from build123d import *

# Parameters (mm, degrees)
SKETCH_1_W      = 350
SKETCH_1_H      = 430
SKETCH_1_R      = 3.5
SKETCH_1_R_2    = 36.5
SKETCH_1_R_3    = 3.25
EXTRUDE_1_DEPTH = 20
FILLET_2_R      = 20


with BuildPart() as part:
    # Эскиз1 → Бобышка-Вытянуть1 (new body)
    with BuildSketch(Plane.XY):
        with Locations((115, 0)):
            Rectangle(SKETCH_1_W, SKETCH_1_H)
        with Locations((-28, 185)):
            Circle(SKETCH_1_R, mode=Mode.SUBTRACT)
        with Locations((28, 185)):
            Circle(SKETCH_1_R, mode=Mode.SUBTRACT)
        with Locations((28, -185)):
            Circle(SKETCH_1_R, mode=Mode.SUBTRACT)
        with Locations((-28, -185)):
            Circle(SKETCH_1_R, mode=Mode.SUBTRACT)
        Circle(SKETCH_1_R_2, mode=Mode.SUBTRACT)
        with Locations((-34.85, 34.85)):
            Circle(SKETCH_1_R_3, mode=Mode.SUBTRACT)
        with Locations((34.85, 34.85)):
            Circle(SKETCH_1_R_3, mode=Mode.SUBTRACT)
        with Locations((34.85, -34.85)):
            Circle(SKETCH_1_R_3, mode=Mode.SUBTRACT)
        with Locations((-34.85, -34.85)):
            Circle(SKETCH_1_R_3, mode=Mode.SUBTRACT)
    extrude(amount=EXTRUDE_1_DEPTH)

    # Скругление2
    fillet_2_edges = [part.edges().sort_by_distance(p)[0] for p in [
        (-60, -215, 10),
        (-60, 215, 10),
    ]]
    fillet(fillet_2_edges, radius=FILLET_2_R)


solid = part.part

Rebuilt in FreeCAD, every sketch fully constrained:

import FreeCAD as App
import Part
import Sketcher
from FreeCAD import Vector


def edges_at(feature, points):
    """Names of the edges that pass closest to the given points."""
    edges = feature.Shape.Edges
    near = lambda p: min(range(len(edges)), key=lambda i: edges[i].distToShape(Part.Vertex(*p))[0])
    return sorted({f"Edge{near(p) + 1}" for p in points})


def add_polygon(sketch, points):
    """Adds a closed chain of lines whose ends are joined by coincident constraints."""
    first, n = sketch.GeometryCount, len(points)
    for a, b in zip(points, points[1:] + points[:1]):
        sketch.addGeometry(Part.LineSegment(App.Vector(*a, 0), App.Vector(*b, 0)), False)
    for i in range(n):
        sketch.addConstraint(Sketcher.Constraint("Coincident", first + i, 2, first + (i + 1) % n, 1))

doc = App.newDocument("Part")
body = doc.addObject("PartDesign::Body", "Body")

# Sketch on XY plane
sketch1 = body.newObject("Sketcher::SketchObject", "Sketch")
sketch1.AttachmentSupport = (doc.getObject("XY_Plane"), [""])
sketch1.MapMode = "FlatFace"
add_polygon(sketch1, [(-60, 215), (-60, -215), (290, -215), (290, 215)])  # lines 0-3
sketch1.addGeometry(Part.Circle(Vector(-28, -185, 0), Vector(0, 0, 1), 3.5), False)  # 4
sketch1.addGeometry(Part.Circle(Vector(-34.9, -34.9, 0), Vector(0, 0, 1), 3.2), False)  # 5
sketch1.addGeometry(Part.Circle(Vector(28, -185, 0), Vector(0, 0, 1), 3.5), False)  # 6
sketch1.addGeometry(Part.Circle(Vector(34.9, -34.9, 0), Vector(0, 0, 1), 3.2), False)  # 7
sketch1.addGeometry(Part.Circle(Vector(-34.9, 34.9, 0), Vector(0, 0, 1), 3.2), False)  # 8
sketch1.addGeometry(Part.Circle(Vector(-28, 185, 0), Vector(0, 0, 1), 3.5), False)  # 9
sketch1.addGeometry(Part.Circle(Vector(0, 0, 0), Vector(0, 0, 1), 36.5), False)  # 10
sketch1.addGeometry(Part.Circle(Vector(34.9, 34.9, 0), Vector(0, 0, 1), 3.2), False)  # 11
sketch1.addGeometry(Part.Circle(Vector(28, 185, 0), Vector(0, 0, 1), 3.5), False)  # 12
sketch1.addConstraint([
    Sketcher.Constraint("Vertical", 0),
    Sketcher.Constraint("Horizontal", 1),
    Sketcher.Constraint("Vertical", 2),
    Sketcher.Constraint("Horizontal", 3),
    Sketcher.Constraint("Coincident", 10, 3, -1, 1),
    Sketcher.Constraint("Equal", 4, 6),
    Sketcher.Constraint("Equal", 5, 7),
    Sketcher.Constraint("Equal", 7, 8),
    Sketcher.Constraint("Equal", 6, 9),
    Sketcher.Constraint("Equal", 8, 11),
    Sketcher.Constraint("Equal", 9, 12),
    Sketcher.Constraint("Symmetric", 7, 3, 8, 3, -1, 1),
    Sketcher.Constraint("Symmetric", 6, 3, 9, 3, -1, 1),
    Sketcher.Constraint("Symmetric", 5, 3, 11, 3, -1, 1),
    Sketcher.Constraint("Symmetric", 4, 3, 12, 3, -1, 1),
    Sketcher.Constraint("Symmetric", 4, 3, 6, 3, -2),
    Sketcher.Constraint("Symmetric", 5, 3, 7, 3, -2),
    Sketcher.Constraint("Diameter", 4, 7.0),
    Sketcher.Constraint("Diameter", 10, 73.0),
    Sketcher.Constraint("Diameter", 5, 6.5),
    Sketcher.Constraint("DistanceX", 1, 1, 1, 2, 350.0),
    Sketcher.Constraint("DistanceY", 0, 2, 0, 1, 430.0),
    Sketcher.Constraint("DistanceX", 4, 3, -1, 1, 28.0),
    Sketcher.Constraint("DistanceY", 4, 3, -1, 1, 185.0),
    Sketcher.Constraint("DistanceX", 0, 2, -1, 1, 60.0),
    Sketcher.Constraint("DistanceY", 0, 2, -1, 1, 215.0),
    Sketcher.Constraint("DistanceX", 5, 3, 7, 3, 69.7),
    Sketcher.Constraint("DistanceY", 5, 3, 8, 3, 69.7),
])
pad1 = body.newObject("PartDesign::Pad", "Pad")
pad1.Profile = sketch1
pad1.Length = 20
doc.recompute()

fillet = body.newObject("PartDesign::Fillet", "Fillet")
fillet.Base = (pad1, edges_at(pad1, [(-60, -215, 10), (-60, 215, 10)]))
fillet.Radius = 20

doc.recompute()
